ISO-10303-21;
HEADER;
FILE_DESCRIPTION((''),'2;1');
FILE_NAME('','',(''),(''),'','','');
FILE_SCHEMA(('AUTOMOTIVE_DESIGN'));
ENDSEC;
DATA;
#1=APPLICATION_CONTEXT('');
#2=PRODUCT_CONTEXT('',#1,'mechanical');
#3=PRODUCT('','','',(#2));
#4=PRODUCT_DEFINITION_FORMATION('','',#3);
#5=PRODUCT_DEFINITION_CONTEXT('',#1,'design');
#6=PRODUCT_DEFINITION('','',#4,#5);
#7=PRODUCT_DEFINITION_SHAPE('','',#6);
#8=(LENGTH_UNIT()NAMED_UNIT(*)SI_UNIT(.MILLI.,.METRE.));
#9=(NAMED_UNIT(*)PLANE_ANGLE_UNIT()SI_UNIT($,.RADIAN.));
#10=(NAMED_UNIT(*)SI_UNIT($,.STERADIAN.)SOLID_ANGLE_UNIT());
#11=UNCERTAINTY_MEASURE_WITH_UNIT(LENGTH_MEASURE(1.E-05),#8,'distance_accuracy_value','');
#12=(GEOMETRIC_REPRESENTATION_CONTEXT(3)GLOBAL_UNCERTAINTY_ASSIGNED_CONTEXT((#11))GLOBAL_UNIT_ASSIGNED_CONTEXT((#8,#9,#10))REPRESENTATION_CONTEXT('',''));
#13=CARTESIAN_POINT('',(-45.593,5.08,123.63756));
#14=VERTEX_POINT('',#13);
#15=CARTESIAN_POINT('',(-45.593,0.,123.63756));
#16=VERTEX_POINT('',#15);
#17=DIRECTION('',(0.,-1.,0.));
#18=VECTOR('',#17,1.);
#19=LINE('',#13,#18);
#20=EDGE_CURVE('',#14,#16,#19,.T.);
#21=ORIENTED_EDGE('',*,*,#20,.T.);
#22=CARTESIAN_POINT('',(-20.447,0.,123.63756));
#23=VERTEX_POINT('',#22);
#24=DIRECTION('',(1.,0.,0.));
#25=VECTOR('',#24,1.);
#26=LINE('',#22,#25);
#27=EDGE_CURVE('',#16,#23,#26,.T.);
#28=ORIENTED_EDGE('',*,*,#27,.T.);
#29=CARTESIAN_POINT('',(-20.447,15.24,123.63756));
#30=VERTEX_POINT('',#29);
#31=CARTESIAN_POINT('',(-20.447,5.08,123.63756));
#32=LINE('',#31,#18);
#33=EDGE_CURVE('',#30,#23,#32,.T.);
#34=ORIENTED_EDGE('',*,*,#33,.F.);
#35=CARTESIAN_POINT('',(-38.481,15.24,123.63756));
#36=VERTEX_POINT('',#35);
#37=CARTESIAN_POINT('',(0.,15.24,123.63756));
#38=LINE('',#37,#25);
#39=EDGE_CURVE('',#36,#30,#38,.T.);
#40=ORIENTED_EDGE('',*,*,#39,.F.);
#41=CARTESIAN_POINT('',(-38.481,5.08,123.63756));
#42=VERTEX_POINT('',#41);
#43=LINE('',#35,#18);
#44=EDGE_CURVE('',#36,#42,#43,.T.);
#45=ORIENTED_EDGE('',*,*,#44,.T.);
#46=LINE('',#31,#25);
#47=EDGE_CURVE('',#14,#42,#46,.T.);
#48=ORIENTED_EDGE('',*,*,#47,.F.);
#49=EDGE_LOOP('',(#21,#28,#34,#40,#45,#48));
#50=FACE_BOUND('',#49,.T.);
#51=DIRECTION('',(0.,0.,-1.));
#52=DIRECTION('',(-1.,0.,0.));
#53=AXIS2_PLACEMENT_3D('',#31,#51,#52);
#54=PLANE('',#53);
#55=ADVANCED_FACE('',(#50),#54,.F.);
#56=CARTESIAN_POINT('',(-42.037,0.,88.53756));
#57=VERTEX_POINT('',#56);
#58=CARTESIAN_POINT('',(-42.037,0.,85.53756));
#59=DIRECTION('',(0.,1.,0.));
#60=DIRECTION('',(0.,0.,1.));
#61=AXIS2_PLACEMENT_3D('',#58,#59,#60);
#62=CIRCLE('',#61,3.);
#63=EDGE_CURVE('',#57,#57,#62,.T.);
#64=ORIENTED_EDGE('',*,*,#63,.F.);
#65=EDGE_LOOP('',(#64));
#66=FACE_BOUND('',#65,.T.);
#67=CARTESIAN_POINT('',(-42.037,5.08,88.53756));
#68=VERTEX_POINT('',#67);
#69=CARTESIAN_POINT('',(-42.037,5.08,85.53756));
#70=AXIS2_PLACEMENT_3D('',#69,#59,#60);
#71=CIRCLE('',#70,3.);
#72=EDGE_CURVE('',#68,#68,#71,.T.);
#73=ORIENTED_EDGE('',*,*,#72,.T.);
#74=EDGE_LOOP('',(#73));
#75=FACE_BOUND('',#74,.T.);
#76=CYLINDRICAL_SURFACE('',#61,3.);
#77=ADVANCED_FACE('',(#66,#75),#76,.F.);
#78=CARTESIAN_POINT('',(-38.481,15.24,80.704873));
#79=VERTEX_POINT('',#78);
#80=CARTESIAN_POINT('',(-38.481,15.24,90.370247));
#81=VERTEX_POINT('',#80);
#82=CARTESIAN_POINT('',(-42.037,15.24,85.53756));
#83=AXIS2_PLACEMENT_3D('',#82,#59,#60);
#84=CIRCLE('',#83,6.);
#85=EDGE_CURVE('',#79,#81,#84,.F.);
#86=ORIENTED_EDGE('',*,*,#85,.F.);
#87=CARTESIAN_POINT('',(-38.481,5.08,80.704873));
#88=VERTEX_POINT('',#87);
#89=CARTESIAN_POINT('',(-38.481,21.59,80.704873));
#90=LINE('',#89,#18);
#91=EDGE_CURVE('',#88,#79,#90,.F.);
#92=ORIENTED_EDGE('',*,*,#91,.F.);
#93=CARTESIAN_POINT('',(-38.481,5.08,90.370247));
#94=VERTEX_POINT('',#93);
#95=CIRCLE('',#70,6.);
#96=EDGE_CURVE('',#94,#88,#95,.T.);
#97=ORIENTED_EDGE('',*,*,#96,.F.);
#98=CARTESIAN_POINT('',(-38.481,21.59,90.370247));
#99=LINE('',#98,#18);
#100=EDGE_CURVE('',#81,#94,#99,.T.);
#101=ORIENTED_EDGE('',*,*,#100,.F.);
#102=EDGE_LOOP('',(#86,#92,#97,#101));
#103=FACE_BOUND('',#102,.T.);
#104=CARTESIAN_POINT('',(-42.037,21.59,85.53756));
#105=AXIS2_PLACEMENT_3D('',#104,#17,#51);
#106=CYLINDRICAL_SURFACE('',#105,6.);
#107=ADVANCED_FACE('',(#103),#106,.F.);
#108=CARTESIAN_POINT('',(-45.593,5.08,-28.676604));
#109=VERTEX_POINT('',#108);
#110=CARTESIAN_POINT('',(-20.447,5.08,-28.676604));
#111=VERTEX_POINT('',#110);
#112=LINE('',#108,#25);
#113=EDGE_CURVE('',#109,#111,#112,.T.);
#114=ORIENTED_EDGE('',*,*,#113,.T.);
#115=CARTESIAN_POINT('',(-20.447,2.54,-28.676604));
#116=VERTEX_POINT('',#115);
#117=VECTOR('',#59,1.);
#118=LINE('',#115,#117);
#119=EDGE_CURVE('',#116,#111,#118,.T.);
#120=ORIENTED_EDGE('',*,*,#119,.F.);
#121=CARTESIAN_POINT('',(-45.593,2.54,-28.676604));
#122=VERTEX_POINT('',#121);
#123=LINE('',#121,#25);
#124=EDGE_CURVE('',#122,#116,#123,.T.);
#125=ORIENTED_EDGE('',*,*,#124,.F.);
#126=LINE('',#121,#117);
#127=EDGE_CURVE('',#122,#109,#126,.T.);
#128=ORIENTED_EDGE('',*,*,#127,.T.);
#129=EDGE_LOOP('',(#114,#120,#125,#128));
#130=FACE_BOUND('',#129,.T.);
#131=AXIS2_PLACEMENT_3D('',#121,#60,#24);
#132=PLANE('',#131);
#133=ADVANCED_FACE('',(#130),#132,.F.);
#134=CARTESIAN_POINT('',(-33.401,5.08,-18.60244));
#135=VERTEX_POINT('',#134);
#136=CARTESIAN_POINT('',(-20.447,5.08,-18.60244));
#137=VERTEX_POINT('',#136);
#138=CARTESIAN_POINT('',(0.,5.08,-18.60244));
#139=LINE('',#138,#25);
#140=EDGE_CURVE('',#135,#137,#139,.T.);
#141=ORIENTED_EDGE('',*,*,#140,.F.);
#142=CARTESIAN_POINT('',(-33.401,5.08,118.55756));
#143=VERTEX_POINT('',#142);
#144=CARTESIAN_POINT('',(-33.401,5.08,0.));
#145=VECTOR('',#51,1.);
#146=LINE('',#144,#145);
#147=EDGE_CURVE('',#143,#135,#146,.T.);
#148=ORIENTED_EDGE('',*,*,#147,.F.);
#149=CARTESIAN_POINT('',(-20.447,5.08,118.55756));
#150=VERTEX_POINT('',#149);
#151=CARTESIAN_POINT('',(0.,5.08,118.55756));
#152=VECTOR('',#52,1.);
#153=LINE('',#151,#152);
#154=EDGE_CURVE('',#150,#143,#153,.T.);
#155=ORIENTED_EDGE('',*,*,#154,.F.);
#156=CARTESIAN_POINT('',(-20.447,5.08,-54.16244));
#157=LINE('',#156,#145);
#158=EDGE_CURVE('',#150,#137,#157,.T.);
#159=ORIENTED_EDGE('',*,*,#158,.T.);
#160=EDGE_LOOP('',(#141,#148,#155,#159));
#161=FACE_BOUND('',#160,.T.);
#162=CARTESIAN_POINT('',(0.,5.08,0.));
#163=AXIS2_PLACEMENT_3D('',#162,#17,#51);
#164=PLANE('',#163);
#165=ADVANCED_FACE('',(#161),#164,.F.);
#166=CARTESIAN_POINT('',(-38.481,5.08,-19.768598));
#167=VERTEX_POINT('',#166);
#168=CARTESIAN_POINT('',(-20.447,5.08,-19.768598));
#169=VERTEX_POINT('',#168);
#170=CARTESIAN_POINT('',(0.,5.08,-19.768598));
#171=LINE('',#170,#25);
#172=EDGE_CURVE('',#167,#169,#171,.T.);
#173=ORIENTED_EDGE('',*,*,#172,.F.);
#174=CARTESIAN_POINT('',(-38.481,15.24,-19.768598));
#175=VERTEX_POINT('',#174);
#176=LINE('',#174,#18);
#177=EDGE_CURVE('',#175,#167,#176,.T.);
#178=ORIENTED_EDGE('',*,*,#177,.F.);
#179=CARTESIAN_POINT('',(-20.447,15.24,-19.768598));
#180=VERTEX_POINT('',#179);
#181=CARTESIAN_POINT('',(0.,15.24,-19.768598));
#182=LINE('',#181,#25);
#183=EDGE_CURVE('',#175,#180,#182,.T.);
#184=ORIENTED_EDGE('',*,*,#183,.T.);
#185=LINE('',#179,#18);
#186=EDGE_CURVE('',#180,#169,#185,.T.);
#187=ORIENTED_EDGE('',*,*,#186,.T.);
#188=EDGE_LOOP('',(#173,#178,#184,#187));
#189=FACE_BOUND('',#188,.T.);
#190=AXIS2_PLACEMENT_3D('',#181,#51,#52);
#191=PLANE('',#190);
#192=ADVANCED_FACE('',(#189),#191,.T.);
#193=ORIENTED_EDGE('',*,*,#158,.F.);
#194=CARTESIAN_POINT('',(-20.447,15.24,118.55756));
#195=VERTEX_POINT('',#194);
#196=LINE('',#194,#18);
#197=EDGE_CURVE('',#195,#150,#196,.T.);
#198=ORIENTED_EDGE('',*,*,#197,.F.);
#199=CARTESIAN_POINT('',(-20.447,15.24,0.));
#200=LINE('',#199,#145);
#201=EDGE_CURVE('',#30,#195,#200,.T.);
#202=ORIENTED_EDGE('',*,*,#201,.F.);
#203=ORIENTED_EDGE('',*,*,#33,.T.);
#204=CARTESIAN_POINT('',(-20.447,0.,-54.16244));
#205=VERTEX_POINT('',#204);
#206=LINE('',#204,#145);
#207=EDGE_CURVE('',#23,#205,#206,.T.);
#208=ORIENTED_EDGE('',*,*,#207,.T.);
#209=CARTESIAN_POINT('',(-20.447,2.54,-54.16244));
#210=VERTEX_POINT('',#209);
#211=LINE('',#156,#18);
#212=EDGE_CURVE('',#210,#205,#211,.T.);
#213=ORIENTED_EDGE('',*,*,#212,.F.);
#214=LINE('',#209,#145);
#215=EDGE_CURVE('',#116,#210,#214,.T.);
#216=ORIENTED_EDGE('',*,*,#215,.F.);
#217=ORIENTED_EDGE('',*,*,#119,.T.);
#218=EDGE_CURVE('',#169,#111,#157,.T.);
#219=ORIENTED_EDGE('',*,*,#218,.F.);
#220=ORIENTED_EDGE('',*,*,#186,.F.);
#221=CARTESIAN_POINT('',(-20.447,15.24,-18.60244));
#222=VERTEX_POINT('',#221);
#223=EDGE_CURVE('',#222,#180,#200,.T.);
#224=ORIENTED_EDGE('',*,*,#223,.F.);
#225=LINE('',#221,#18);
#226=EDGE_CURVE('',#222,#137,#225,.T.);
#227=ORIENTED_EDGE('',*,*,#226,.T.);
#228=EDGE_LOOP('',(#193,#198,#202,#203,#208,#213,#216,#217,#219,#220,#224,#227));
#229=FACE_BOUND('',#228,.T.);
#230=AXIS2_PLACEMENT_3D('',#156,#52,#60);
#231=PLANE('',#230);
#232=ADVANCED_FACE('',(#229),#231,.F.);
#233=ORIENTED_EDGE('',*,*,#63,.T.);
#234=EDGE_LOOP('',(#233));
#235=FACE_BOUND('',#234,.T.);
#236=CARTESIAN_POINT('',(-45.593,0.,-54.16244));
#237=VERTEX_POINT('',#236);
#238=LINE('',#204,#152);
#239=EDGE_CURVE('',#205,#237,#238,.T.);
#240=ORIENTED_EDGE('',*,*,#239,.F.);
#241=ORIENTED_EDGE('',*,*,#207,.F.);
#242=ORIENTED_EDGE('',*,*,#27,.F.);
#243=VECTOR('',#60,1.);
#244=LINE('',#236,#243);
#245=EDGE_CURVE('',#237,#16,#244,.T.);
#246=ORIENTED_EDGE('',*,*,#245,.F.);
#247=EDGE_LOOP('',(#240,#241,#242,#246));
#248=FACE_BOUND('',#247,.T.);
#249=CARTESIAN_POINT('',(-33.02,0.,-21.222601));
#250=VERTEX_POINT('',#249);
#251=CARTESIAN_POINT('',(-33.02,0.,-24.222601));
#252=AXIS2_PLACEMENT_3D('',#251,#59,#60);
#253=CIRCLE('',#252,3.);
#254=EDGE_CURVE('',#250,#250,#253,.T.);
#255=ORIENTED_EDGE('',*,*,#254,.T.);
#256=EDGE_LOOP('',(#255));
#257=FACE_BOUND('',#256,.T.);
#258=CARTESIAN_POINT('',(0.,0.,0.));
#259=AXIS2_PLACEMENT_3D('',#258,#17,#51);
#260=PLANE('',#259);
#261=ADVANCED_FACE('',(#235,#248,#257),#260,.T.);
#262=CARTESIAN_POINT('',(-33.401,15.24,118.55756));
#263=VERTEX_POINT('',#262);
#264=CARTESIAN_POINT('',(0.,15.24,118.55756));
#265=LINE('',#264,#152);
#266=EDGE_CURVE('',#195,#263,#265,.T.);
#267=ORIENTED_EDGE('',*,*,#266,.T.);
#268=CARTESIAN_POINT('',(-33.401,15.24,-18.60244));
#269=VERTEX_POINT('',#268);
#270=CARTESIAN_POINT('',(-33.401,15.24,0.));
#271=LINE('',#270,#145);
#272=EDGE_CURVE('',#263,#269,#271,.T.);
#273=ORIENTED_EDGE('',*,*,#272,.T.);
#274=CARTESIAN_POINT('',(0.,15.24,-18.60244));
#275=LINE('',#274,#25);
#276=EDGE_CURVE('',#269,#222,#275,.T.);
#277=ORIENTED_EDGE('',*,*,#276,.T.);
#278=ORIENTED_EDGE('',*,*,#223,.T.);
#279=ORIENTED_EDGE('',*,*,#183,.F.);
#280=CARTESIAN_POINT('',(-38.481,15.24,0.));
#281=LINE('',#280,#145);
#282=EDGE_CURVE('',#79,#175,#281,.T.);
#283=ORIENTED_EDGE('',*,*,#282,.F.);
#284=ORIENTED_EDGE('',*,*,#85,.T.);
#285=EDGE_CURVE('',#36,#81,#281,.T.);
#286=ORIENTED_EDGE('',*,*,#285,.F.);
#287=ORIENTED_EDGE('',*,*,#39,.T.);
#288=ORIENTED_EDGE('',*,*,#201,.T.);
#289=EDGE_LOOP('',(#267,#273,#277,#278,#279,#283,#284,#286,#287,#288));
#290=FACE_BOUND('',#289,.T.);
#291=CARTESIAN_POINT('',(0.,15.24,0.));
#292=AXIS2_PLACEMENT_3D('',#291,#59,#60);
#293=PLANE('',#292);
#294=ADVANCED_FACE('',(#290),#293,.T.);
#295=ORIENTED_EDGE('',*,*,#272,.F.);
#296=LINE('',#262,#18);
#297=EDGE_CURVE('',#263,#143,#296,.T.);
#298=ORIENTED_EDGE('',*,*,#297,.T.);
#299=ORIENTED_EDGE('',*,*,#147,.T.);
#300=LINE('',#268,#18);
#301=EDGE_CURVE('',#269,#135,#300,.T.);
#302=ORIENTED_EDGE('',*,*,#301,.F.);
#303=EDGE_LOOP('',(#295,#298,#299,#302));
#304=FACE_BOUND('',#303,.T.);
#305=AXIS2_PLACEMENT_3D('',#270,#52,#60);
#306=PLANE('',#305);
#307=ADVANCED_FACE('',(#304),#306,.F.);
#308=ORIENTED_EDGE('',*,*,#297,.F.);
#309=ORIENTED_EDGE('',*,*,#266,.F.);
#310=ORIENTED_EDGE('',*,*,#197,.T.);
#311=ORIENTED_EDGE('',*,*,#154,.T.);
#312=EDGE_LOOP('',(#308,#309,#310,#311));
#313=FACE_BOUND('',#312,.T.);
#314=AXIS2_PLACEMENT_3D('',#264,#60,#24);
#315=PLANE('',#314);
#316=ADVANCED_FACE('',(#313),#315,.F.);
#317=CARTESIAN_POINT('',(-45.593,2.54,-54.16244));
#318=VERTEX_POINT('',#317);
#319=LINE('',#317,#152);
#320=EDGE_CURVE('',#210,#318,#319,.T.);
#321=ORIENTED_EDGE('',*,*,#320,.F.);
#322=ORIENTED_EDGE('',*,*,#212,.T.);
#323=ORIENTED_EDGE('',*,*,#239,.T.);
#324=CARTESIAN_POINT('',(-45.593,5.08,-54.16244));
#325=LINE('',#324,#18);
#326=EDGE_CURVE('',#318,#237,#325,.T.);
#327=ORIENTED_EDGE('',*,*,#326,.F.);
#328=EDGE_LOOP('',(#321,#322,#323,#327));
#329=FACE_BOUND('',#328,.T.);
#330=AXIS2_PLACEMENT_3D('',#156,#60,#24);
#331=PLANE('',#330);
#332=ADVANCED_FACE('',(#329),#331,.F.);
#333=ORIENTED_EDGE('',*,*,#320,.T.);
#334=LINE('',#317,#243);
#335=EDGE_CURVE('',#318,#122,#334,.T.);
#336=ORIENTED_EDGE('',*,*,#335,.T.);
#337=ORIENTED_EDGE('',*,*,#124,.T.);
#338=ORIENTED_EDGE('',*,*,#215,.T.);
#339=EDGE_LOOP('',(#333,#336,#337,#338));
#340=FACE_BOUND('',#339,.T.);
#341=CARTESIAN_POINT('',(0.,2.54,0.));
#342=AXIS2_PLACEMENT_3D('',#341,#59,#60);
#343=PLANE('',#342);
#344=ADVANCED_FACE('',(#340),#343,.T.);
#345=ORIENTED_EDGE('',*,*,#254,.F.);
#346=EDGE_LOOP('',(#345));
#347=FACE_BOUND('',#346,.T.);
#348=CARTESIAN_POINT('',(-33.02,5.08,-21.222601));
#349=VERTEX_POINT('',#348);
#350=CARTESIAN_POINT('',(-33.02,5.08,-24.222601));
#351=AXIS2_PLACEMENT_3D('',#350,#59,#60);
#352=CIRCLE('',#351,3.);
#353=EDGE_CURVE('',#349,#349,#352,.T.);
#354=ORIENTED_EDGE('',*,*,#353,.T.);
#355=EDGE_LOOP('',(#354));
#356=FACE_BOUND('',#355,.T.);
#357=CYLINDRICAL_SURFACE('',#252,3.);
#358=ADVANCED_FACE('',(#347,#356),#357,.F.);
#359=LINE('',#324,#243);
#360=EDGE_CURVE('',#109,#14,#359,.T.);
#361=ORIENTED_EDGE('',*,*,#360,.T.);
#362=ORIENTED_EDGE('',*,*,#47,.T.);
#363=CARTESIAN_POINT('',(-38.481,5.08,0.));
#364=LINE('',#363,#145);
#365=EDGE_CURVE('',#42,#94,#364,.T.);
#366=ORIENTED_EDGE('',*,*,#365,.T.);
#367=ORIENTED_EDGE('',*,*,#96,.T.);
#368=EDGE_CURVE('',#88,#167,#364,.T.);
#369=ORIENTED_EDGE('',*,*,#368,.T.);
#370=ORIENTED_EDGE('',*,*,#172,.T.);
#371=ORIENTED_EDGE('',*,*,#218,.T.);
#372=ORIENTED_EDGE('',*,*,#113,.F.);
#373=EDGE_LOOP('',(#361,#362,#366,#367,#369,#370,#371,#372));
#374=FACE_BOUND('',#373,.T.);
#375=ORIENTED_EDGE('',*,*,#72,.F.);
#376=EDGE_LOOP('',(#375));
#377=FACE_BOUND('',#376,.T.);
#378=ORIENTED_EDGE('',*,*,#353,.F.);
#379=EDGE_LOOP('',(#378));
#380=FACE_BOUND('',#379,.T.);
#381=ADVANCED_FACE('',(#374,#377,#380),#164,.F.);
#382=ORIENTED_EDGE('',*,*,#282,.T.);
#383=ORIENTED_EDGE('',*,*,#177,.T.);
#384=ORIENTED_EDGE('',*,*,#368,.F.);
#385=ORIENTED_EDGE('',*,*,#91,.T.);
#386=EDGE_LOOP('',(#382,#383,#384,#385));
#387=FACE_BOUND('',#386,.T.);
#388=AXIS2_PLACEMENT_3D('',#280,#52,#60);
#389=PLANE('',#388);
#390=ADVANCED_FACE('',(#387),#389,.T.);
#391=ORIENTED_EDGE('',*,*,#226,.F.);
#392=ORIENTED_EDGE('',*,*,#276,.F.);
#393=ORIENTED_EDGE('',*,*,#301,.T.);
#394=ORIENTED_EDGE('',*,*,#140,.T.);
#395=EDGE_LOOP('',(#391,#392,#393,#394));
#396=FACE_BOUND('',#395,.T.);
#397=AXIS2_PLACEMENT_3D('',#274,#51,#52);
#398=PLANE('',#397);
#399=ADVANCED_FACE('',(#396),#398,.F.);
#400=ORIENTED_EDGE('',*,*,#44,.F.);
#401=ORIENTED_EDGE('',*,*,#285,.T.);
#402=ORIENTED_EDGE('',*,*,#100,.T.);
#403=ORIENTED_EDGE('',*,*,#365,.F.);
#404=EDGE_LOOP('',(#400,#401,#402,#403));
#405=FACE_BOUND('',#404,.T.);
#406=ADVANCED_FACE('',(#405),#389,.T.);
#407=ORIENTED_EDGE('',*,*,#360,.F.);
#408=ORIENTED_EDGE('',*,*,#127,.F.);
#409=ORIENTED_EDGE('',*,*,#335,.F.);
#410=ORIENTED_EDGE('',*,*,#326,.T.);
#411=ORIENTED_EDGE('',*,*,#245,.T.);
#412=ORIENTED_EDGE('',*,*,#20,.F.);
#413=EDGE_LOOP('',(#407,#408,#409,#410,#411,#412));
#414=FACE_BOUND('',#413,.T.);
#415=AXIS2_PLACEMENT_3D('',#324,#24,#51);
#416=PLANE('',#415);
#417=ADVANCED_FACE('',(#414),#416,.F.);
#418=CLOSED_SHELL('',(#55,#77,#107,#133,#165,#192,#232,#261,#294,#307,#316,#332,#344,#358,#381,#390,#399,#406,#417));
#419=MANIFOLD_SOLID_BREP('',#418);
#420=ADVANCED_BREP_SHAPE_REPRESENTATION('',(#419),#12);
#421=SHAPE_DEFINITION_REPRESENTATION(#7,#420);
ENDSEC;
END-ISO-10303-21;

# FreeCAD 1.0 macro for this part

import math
import FreeCAD as App
import Part
import Sketcher
from FreeCAD import Vector
Q = App.Units.Quantity


def add_polygon(sketch, points):
    """Adds a closed chain of lines whose ends are joined by coincident constraints."""
    first, n = sketch.GeometryCount, len(points)
    for a, b in zip(points, points[1:] + points[:1]):
        sketch.addGeometry(Part.LineSegment(App.Vector(*a, 0), App.Vector(*b, 0)), False)
    for i in range(n):
        sketch.addConstraint(Sketcher.Constraint("Coincident", first + i, 2, first + (i + 1) % n, 1))

doc = App.newDocument("Part")
body = doc.addObject("PartDesign::Body", "Body")

sketch1 = doc.addObject("Sketcher::SketchObject", "Sketch")
body.addObject(sketch1)
sketch1.AttachmentSupport = (doc.XZ_Plane, [""])
sketch1.MapMode = "FlatFace"
add_polygon(sketch1, [(-45.593, -54.16244), (-45.593, 123.63756), (-20.447, 123.63756), (-20.447, -54.16244)])
sketch1.addConstraint([
    Sketcher.Constraint("Vertical", 0),
    Sketcher.Constraint("Horizontal", 1),
    Sketcher.Constraint("Vertical", 2),
    Sketcher.Constraint("Horizontal", 3),
    Sketcher.Constraint("DistanceY", 0, 1, 0, 2, Q("7 in")),
    Sketcher.Constraint("DistanceX", 1, 1, 1, 2, Q("0.99 in")),
    Sketcher.Constraint("DistanceX", 0, 2, -1, 1, Q("1.795 in")),
    Sketcher.Constraint("DistanceY", -1, 1, 0, 2, Q("123.63756 mm")),
])
pad1 = doc.addObject("PartDesign::Pad", "Pad")
body.addObject(pad1)
pad1.Profile = sketch1
pad1.Length = Q("0.2 in")
pad1.Reversed = True

sketch2 = doc.addObject("Sketcher::SketchObject", "Sketch001")
body.addObject(sketch2)
sketch2.AttachmentSupport = (doc.XZ_Plane, [""])
sketch2.MapMode = "FlatFace"
sketch2.AttachmentOffset = App.Placement(Vector(0, 0, -0.2 * 25.4), App.Rotation())
add_polygon(sketch2, [(-38.481, 123.63756), (-20.447, 123.63756), (-20.447, 118.55756), (-33.401, 118.55756), (-33.401, -18.60244), (-20.447, -18.60244), (-20.447, -19.768598), (-38.481, -19.768598)])
sketch2.addConstraint([
    Sketcher.Constraint("Horizontal", 0),
    Sketcher.Constraint("Vertical", 1),
    Sketcher.Constraint("Horizontal", 2),
    Sketcher.Constraint("Vertical", 3),
    Sketcher.Constraint("Horizontal", 4),
    Sketcher.Constraint("Vertical", 5),
    Sketcher.Constraint("Horizontal", 6),
    Sketcher.Constraint("Vertical", 7),
    Sketcher.Constraint("Vertical", 1, 2, 4, 2),
    Sketcher.Constraint("DistanceY", 1, 2, 1, 1, Q("0.2 in")),
    Sketcher.Constraint("DistanceY", 3, 2, 3, 1, Q("5.4 in")),
    Sketcher.Constraint("DistanceX", 0, 1, 0, 2, Q("0.71 in")),
    Sketcher.Constraint("DistanceX", 2, 2, 2, 1, Q("0.51 in")),
    Sketcher.Constraint("DistanceX", 0, 2, -1, 1, Q("0.805 in")),
    Sketcher.Constraint("DistanceY", 5, 2, 5, 1, Q("1.166158 mm")),
    Sketcher.Constraint("DistanceY", -1, 1, 0, 2, Q("123.63756 mm")),
])
pad2 = doc.addObject("PartDesign::Pad", "Pad001")
body.addObject(pad2)
pad2.Profile = sketch2
pad2.Length = Q("0.4 in")
pad2.Reversed = True

sketch3 = doc.addObject("Sketcher::SketchObject", "Sketch002")
body.addObject(sketch3)
sketch3.AttachmentSupport = (doc.XZ_Plane, [""])
sketch3.MapMode = "FlatFace"
sketch3.AttachmentOffset = App.Placement(Vector(0, 0, -0.2 * 25.4), App.Rotation())
add_polygon(sketch3, [(-45.593, -54.16244), (-45.593, -28.676604), (-20.447, -28.676604), (-20.447, -54.16244)])
sketch3.addConstraint([
    Sketcher.Constraint("Vertical", 0),
    Sketcher.Constraint("Horizontal", 1),
    Sketcher.Constraint("Vertical", 2),
    Sketcher.Constraint("Horizontal", 3),
    Sketcher.Constraint("DistanceX", 1, 1, 1, 2, Q("0.99 in")),
    Sketcher.Constraint("DistanceX", 0, 2, -1, 1, Q("1.795 in")),
    Sketcher.Constraint("DistanceY", 0, 2, -1, 1, Q("1.1290002 in")),
    Sketcher.Constraint("DistanceY", 0, 1, 0, 2, Q("25.485836 mm")),
])
pocket1 = doc.addObject("PartDesign::Pocket", "Pocket")
body.addObject(pocket1)
pocket1.Profile = sketch3
pocket1.Length = Q("0.1 in")
pocket1.Reversed = True

sketch4 = doc.addObject("Sketcher::SketchObject", "Sketch003")
body.addObject(sketch4)
sketch4.AttachmentSupport = (doc.XZ_Plane, [""])
sketch4.MapMode = "FlatFace"
sketch4.AttachmentOffset = App.Placement(Vector(0, 0, -0.2 * 25.4), App.Rotation())
sketch4.addGeometry(Part.Circle(Vector(-33.02, -24.222601, 0), Vector(0, 0, 1), 3), False)
sketch4.addConstraint([
    Sketcher.Constraint("DistanceX", 0, 3, -1, 1, Q("1.3 in")),
    Sketcher.Constraint("Diameter", 0, Q("6 mm")),
    Sketcher.Constraint("DistanceY", 0, 3, -1, 1, Q("24.222601 mm")),
])
pocket2 = doc.addObject("PartDesign::Pocket", "Pocket001")
body.addObject(pocket2)
pocket2.Profile = sketch4
pocket2.Type = "ThroughAll"
pocket2.Reversed = True

sketch5 = doc.addObject("Sketcher::SketchObject", "Sketch004")
body.addObject(sketch5)
sketch5.AttachmentSupport = (doc.XZ_Plane, [""])
sketch5.MapMode = "FlatFace"
sketch5.AttachmentOffset = App.Placement(Vector(0, 0, -0.2 * 25.4), App.Rotation())
sketch5.addGeometry([
    Part.Circle(Vector(-42.037, 85.53756, 0), Vector(0, 0, 1), 6),
    Part.Circle(Vector(-42.037, 85.53756, 0), Vector(0, 0, 1), 3),
], False)
sketch5.addConstraint([
    Sketcher.Constraint("Coincident", 1, 3, 0, 3),
    Sketcher.Constraint("Diameter", 0, Q("12 mm")),
    Sketcher.Constraint("Diameter", 1, Q("6 mm")),
    Sketcher.Constraint("DistanceX", 0, 3, -1, 1, Q("1.655 in")),
    Sketcher.Constraint("DistanceY", -1, 1, 0, 3, Q("85.53756 mm")),
])
pocket3 = doc.addObject("PartDesign::Pocket", "Pocket002")
body.addObject(pocket3)
pocket3.Profile = sketch5
pocket3.Length = Q("0.65 in")

sketch6 = doc.addObject("Sketcher::SketchObject", "Sketch005")
body.addObject(sketch6)
sketch6.AttachmentSupport = (doc.XZ_Plane, [""])
sketch6.MapMode = "FlatFace"
sketch6.AttachmentOffset = App.Placement(Vector(0, 0, -0.2 * 25.4), App.Rotation())
sketch6.addGeometry([
    Part.ArcOfCircle(Part.Circle(Vector(-42.037, 85.53756, 0), Vector(0, 0, 1), 3), math.radians(90), math.radians(270)),
    Part.ArcOfCircle(Part.Circle(Vector(-42.037, 85.53756, 0), Vector(0, 0, 1), 3), math.radians(0), math.radians(90)),
    Part.ArcOfCircle(Part.Circle(Vector(-42.037, 85.53756, 0), Vector(0, 0, 1), 3), math.radians(-90), math.radians(0)),
], False)
sketch6.addConstraint([
    Sketcher.Constraint("Tangent", 0, 1, 1, 2),
    Sketcher.Constraint("Tangent", 1, 1, 2, 2),
    Sketcher.Constraint("Tangent", 2, 1, 0, 2),
    Sketcher.Constraint("Horizontal", 2, 3, 1, 1),
    Sketcher.Constraint("Vertical", 2, 3, 0, 1),
    Sketcher.Constraint("Vertical", 0, 1, 2, 1),
    Sketcher.Constraint("Radius", 0, Q("3 mm")),
    Sketcher.Constraint("DistanceX", 0, 3, -1, 1, Q("1.655 in")),
    Sketcher.Constraint("DistanceY", -1, 1, 0, 3, Q("85.53756 mm")),
])
pocket4 = doc.addObject("PartDesign::Pocket", "Pocket003")
body.addObject(pocket4)
pocket4.Profile = sketch6
pocket4.Type = "ThroughAll"
pocket4.Reversed = True

doc.recompute()
